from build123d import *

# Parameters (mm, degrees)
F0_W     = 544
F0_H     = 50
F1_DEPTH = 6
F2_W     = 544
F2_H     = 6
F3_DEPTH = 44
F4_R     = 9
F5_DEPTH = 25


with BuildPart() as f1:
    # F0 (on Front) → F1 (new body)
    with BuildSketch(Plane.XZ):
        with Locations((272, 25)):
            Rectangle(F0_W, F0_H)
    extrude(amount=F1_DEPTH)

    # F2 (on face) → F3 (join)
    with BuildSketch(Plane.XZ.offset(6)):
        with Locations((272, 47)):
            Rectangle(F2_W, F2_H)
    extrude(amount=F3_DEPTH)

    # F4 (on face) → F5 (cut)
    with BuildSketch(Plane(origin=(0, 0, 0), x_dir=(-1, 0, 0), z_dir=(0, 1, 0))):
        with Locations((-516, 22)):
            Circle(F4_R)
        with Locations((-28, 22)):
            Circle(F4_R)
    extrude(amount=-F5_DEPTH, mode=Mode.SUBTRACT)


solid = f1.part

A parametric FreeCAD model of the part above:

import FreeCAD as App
import Part
import Sketcher

doc = App.newDocument("Part")
params = doc.addObject("Spreadsheet::Sheet", "Params")
for row, (alias, value) in enumerate([
    ("sketch1_width", "544 mm"),
    ("sketch1_height", "50 mm"),
    ("pad1_length", "6 mm"),
    ("sketch2_width", "544 mm"),
    ("sketch2_height", "6 mm"),
    ("pad2_length", "44 mm"),
    ("sketch3_diameter", "18 mm"),
    ("pocket1_length", "25 mm"),
], start=1):
    params.set(f"A{row}", alias)
    params.set(f"B{row}", "=" + value)
    params.setAlias(f"B{row}", alias)

body = doc.addObject("PartDesign::Body", "Body")

sketch1 = doc.addObject("Sketcher::SketchObject", "Sketch")
body.addObject(sketch1)
sketch1.AttachmentSupport = (doc.XZ_Plane, [""])
sketch1.MapMode = "FlatFace"
sketch1.addGeometry(Part.LineSegment(App.Vector(0, 50, 0), App.Vector(0, 0, 0)), False)
sketch1.addGeometry(Part.LineSegment(App.Vector(0, 0, 0), App.Vector(544, 0, 0)), False)
sketch1.addGeometry(Part.LineSegment(App.Vector(544, 0, 0), App.Vector(544, 50, 0)), False)
sketch1.addGeometry(Part.LineSegment(App.Vector(544, 50, 0), App.Vector(0, 50, 0)), False)
sketch1.addConstraint(Sketcher.Constraint("Coincident", 0, 2, 1, 1))
sketch1.addConstraint(Sketcher.Constraint("Coincident", 1, 2, 2, 1))
sketch1.addConstraint(Sketcher.Constraint("Coincident", 2, 2, 3, 1))
sketch1.addConstraint(Sketcher.Constraint("Coincident", 3, 2, 0, 1))
sketch1.addConstraint(Sketcher.Constraint("Vertical", 0))
sketch1.addConstraint(Sketcher.Constraint("Horizontal", 1))
sketch1.addConstraint(Sketcher.Constraint("Vertical", 2))
sketch1.addConstraint(Sketcher.Constraint("Horizontal", 3))
sketch1.addConstraint(Sketcher.Constraint("Coincident", 0, 2, -1, 1))
sketch1.addConstraint(Sketcher.Constraint("DistanceX", 1, 1, 1, 2, 544.0))
sketch1.addConstraint(Sketcher.Constraint("DistanceY", 0, 2, 0, 1, 50.0))
sketch1.setExpression("Constraints[9]", "Params.sketch1_width")
sketch1.setExpression("Constraints[10]", "Params.sketch1_height")
pad1 = doc.addObject("PartDesign::Pad", "Pad")
body.addObject(pad1)
pad1.Profile = sketch1
pad1.setExpression("Length", "Params.pad1_length")

sketch2 = doc.addObject("Sketcher::SketchObject", "Sketch001")
body.addObject(sketch2)
sketch2.AttachmentSupport = (doc.XZ_Plane, [""])
sketch2.MapMode = "FlatFace"
sketch2.AttachmentOffset = App.Placement(App.Vector(0, 0, 6), App.Rotation())
sketch2.addGeometry(Part.LineSegment(App.Vector(0, 50, 0), App.Vector(0, 44, 0)), False)
sketch2.addGeometry(Part.LineSegment(App.Vector(0, 44, 0), App.Vector(544, 44, 0)), False)
sketch2.addGeometry(Part.LineSegment(App.Vector(544, 44, 0), App.Vector(544, 50, 0)), False)
sketch2.addGeometry(Part.LineSegment(App.Vector(544, 50, 0), App.Vector(0, 50, 0)), False)
sketch2.addConstraint(Sketcher.Constraint("Coincident", 0, 2, 1, 1))
sketch2.addConstraint(Sketcher.Constraint("Coincident", 1, 2, 2, 1))
sketch2.addConstraint(Sketcher.Constraint("Coincident", 2, 2, 3, 1))
sketch2.addConstraint(Sketcher.Constraint("Coincident", 3, 2, 0, 1))
sketch2.addConstraint(Sketcher.Constraint("Vertical", 0))
sketch2.addConstraint(Sketcher.Constraint("Horizontal", 1))
sketch2.addConstraint(Sketcher.Constraint("Vertical", 2))
sketch2.addConstraint(Sketcher.Constraint("Horizontal", 3))
sketch2.addConstraint(Sketcher.Constraint("PointOnObject", 0, 2, -2))
sketch2.addConstraint(Sketcher.Constraint("DistanceX", 1, 1, 1, 2, 544.0))
sketch2.addConstraint(Sketcher.Constraint("DistanceY", 0, 2, 0, 1, 6.0))
sketch2.addConstraint(Sketcher.Constraint("DistanceY", -1, 1, 0, 2, 44.0))
sketch2.setExpression("Constraints[9]", "Params.sketch2_width")
sketch2.setExpression("Constraints[10]", "Params.sketch2_height")
pad2 = doc.addObject("PartDesign::Pad", "Pad001")
body.addObject(pad2)
pad2.Profile = sketch2
pad2.setExpression("Length", "Params.pad2_length")

sketch3 = doc.addObject("Sketcher::SketchObject", "Sketch002")
body.addObject(sketch3)
sketch3.AttachmentSupport = (doc.XZ_Plane, [""])
sketch3.MapMode = "FlatFace"
sketch3.addGeometry(Part.Circle(App.Vector(516, 22, 0), App.Vector(0, 0, 1), 9), False)
sketch3.addGeometry(Part.Circle(App.Vector(28, 22, 0), App.Vector(0, 0, 1), 9), False)
sketch3.addConstraint(Sketcher.Constraint("Equal", 0, 1))
sketch3.addConstraint(Sketcher.Constraint("Horizontal", 0, 3, 1, 3))
sketch3.addConstraint(Sketcher.Constraint("Diameter", 0, 18.0))
sketch3.addConstraint(Sketcher.Constraint("DistanceX", -1, 1, 0, 3, 516.0))
sketch3.addConstraint(Sketcher.Constraint("DistanceY", -1, 1, 0, 3, 22.0))
sketch3.addConstraint(Sketcher.Constraint("DistanceX", -1, 1, 1, 3, 28.0))
sketch3.setExpression("Constraints[2]", "Params.sketch3_diameter")
pocket1 = doc.addObject("PartDesign::Pocket", "Pocket")
body.addObject(pocket1)
pocket1.Profile = sketch3
pocket1.setExpression("Length", "Params.pocket1_length")
pocket1.Reversed = True

doc.recompute()
